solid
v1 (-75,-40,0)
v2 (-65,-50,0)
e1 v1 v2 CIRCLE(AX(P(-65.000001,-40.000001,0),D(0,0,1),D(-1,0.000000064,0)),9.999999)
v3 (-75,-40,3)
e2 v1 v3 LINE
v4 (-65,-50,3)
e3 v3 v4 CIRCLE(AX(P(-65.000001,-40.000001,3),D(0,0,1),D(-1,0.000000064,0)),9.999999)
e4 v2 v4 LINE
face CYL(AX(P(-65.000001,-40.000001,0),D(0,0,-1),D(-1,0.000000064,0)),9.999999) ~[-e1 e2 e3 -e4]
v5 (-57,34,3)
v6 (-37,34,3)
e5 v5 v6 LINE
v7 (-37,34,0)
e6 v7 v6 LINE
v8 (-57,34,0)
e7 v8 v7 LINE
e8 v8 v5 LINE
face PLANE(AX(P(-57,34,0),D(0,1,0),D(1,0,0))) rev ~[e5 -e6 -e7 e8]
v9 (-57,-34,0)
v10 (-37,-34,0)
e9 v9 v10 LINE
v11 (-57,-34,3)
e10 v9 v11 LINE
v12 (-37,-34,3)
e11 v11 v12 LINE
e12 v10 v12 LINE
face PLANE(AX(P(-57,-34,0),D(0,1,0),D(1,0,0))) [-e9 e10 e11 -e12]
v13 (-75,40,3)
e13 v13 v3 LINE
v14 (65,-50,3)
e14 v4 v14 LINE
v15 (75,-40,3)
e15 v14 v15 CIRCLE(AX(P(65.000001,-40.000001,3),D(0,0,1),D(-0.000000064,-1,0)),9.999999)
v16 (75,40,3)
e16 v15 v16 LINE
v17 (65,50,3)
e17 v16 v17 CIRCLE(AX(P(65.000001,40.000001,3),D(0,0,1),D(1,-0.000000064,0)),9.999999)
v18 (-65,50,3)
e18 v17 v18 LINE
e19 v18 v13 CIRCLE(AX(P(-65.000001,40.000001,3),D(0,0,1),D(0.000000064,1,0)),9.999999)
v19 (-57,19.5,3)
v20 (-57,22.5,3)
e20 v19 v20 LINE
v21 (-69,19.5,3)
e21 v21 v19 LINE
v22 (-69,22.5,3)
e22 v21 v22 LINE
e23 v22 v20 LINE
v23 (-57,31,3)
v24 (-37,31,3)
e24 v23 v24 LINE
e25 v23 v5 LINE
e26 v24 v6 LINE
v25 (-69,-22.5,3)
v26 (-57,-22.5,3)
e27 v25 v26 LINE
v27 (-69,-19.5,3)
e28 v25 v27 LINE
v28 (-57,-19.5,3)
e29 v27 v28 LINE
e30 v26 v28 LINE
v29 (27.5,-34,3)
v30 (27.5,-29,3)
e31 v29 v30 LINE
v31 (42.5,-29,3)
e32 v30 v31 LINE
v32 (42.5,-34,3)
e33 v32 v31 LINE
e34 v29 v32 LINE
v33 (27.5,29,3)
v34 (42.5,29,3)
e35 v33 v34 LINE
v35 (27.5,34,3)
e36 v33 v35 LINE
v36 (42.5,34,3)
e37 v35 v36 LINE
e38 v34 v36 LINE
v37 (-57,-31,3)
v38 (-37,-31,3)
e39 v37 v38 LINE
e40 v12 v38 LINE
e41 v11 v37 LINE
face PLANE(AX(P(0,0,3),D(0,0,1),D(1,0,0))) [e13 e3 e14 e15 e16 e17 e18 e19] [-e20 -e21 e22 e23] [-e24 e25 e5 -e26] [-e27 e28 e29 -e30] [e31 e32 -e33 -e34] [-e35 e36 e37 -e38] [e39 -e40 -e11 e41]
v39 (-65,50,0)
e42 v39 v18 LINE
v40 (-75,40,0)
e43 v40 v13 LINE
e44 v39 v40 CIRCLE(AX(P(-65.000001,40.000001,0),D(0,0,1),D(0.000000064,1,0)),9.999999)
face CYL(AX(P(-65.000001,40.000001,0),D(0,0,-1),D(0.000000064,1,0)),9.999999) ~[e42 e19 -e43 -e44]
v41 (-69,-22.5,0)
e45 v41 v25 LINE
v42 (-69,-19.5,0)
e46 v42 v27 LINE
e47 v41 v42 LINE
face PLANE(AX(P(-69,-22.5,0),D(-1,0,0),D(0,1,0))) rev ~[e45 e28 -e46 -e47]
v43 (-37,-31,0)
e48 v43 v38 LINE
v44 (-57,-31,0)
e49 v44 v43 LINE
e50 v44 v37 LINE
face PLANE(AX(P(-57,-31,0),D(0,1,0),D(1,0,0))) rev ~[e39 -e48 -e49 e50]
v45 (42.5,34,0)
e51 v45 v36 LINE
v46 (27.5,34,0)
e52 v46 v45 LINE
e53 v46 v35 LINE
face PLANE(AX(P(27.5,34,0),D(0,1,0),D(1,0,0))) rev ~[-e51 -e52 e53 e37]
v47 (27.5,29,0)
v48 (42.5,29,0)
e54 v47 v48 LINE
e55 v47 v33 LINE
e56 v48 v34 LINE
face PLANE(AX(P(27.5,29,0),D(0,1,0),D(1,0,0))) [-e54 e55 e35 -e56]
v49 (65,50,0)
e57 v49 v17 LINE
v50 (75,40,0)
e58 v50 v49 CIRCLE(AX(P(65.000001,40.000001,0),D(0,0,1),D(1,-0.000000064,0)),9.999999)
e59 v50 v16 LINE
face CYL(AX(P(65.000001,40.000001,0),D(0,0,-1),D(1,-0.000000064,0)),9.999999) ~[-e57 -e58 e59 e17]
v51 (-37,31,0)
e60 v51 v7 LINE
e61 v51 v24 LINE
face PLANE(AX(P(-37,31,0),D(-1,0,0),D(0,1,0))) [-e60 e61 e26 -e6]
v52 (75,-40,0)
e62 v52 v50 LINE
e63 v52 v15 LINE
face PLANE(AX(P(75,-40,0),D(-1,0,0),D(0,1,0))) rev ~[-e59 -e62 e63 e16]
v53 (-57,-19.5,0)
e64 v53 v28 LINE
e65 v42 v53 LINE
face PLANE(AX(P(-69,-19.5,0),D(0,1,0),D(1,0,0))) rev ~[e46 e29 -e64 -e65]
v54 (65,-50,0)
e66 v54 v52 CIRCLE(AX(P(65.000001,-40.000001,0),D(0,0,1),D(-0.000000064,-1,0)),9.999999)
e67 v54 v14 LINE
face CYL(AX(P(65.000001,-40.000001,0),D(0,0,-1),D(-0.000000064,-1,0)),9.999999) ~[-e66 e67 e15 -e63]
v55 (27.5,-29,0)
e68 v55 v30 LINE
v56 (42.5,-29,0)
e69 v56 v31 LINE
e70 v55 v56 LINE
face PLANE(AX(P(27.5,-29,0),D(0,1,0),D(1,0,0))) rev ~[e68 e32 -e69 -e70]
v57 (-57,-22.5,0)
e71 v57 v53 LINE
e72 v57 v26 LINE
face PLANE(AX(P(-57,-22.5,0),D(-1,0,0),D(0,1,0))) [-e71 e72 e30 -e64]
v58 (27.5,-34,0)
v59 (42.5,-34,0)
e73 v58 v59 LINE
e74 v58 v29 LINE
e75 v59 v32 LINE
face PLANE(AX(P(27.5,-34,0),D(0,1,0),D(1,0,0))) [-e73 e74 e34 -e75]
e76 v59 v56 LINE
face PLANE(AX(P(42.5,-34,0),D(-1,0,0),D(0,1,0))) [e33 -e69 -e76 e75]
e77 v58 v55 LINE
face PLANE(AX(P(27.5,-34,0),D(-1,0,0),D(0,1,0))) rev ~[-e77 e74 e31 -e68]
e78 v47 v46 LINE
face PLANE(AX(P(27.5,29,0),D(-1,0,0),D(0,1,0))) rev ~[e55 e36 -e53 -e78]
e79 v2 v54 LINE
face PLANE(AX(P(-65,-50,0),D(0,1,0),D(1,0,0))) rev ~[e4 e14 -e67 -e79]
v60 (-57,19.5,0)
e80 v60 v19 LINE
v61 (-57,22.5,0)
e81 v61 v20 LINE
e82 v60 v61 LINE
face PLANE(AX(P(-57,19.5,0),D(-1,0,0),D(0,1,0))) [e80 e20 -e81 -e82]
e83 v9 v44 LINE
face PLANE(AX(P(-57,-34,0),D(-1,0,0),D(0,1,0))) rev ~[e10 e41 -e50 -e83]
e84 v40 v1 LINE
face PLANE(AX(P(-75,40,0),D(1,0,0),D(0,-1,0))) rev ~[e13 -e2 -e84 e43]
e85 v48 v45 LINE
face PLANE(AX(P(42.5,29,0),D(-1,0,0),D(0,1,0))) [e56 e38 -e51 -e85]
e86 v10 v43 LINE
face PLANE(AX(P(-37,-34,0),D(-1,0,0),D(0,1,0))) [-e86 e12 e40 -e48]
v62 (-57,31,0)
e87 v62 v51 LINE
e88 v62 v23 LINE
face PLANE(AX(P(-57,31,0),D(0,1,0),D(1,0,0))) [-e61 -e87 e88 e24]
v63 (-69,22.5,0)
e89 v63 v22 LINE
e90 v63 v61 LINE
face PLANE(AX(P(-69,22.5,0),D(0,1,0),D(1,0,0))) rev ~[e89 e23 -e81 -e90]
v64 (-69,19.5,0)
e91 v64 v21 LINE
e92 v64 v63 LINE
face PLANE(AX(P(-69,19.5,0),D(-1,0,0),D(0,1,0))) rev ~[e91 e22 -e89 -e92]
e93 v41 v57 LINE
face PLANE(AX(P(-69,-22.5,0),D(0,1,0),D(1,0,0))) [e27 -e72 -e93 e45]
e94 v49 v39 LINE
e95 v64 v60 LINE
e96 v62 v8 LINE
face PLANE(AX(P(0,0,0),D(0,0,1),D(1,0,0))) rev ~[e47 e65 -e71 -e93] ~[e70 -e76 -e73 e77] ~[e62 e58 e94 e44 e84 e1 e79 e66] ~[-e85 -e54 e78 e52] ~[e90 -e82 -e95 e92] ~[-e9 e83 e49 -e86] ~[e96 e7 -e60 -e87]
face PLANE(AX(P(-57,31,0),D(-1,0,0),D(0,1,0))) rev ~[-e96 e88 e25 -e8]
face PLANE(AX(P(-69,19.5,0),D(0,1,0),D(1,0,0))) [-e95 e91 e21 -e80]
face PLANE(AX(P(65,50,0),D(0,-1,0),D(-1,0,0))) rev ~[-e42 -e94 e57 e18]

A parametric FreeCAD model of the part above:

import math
import FreeCAD as App
import Part
import Sketcher
from FreeCAD import Vector
Q = App.Units.Quantity


def add_polygon(sketch, points):
    """Adds a closed chain of lines whose ends are joined by coincident constraints."""
    first, n = sketch.GeometryCount, len(points)
    for a, b in zip(points, points[1:] + points[:1]):
        sketch.addGeometry(Part.LineSegment(App.Vector(*a, 0), App.Vector(*b, 0)), False)
    for i in range(n):
        sketch.addConstraint(Sketcher.Constraint("Coincident", first + i, 2, first + (i + 1) % n, 1))

doc = App.newDocument("Part")
body = doc.addObject("PartDesign::Body", "Body")

# Sketch on XY plane
sketch1 = doc.addObject("Sketcher::SketchObject", "Sketch")
body.addObject(sketch1)
sketch1.AttachmentSupport = (doc.XY_Plane, [""])
sketch1.MapMode = "FlatFace"
sketch1.addGeometry(Part.LineSegment(Vector(65, 50, 0), Vector(-65, 50, 0)), False)  # 0
sketch1.addGeometry(Part.ArcOfCircle(Part.Circle(Vector(-65, 40, 0), Vector(0, 0, 1), 10), math.radians(90), math.radians(180)), False)  # 1
sketch1.addGeometry(Part.LineSegment(Vector(-75, 40, 0), Vector(-75, -40, 0)), False)  # 2
sketch1.addGeometry(Part.ArcOfCircle(Part.Circle(Vector(-65, -40, 0), Vector(0, 0, 1), 10), math.radians(180), math.radians(270)), False)  # 3
sketch1.addGeometry(Part.LineSegment(Vector(-65, -50, 0), Vector(65, -50, 0)), False)  # 4
sketch1.addGeometry(Part.ArcOfCircle(Part.Circle(Vector(65, -40, 0), Vector(0, 0, 1), 10), math.radians(-90), math.radians(0)), False)  # 5
sketch1.addGeometry(Part.LineSegment(Vector(75, -40, 0), Vector(75, 40, 0)), False)  # 6
sketch1.addGeometry(Part.ArcOfCircle(Part.Circle(Vector(65, 40, 0), Vector(0, 0, 1), 10), math.radians(0), math.radians(90)), False)  # 7
add_polygon(sketch1, [(-37, -34), (-57, -34), (-57, -31), (-37, -31)])  # lines 8-11
add_polygon(sketch1, [(-57, -22.5), (-69, -22.5), (-69, -19.5), (-57, -19.5)])  # lines 12-15
add_polygon(sketch1, [(42.5, -34), (27.5, -34), (27.5, -29), (42.5, -29)])  # lines 16-19
add_polygon(sketch1, [(-57, 19.5), (-69, 19.5), (-69, 22.5), (-57, 22.5)])  # lines 20-23
add_polygon(sketch1, [(-37, 31), (-57, 31), (-57, 34), (-37, 34)])  # lines 24-27
add_polygon(sketch1, [(42.5, 29), (27.5, 29), (27.5, 34), (42.5, 34)])  # lines 28-31
sketch1.addConstraint([
    Sketcher.Constraint("Tangent", 0, 2, 1, 1),
    Sketcher.Constraint("Tangent", 1, 2, 2, 1),
    Sketcher.Constraint("Tangent", 2, 2, 3, 1),
    Sketcher.Constraint("Tangent", 3, 2, 4, 1),
    Sketcher.Constraint("Tangent", 4, 2, 5, 1),
    Sketcher.Constraint("Tangent", 5, 2, 6, 1),
    Sketcher.Constraint("Tangent", 6, 2, 7, 1),
    Sketcher.Constraint("Tangent", 7, 2, 0, 1),
    Sketcher.Constraint("Horizontal", 0),
    Sketcher.Constraint("Vertical", 2),
    Sketcher.Constraint("Horizontal", 4),
    Sketcher.Constraint("Vertical", 6),
    Sketcher.Constraint("Horizontal", 8),
    Sketcher.Constraint("Vertical", 9),
    Sketcher.Constraint("Horizontal", 10),
    Sketcher.Constraint("Vertical", 11),
    Sketcher.Constraint("Horizontal", 12),
    Sketcher.Constraint("Vertical", 13),
    Sketcher.Constraint("Horizontal", 14),
    Sketcher.Constraint("Vertical", 15),
    Sketcher.Constraint("Horizontal", 16),
    Sketcher.Constraint("Vertical", 17),
    Sketcher.Constraint("Horizontal", 18),
    Sketcher.Constraint("Vertical", 19),
    Sketcher.Constraint("Horizontal", 20),
    Sketcher.Constraint("Vertical", 21),
    Sketcher.Constraint("Horizontal", 22),
    Sketcher.Constraint("Vertical", 23),
    Sketcher.Constraint("Horizontal", 24),
    Sketcher.Constraint("Vertical", 25),
    Sketcher.Constraint("Horizontal", 26),
    Sketcher.Constraint("Vertical", 27),
    Sketcher.Constraint("Horizontal", 28),
    Sketcher.Constraint("Vertical", 29),
    Sketcher.Constraint("Horizontal", 30),
    Sketcher.Constraint("Vertical", 31),
    Sketcher.Constraint("Equal", 1, 3),
    Sketcher.Constraint("Equal", 3, 5),
    Sketcher.Constraint("Equal", 5, 7),
    Sketcher.Constraint("Symmetric", 1, 3, 5, 3, -1, 1),
    Sketcher.Constraint("Symmetric", 13, 2, 20, 2, -1),
    Sketcher.Constraint("Symmetric", 15, 2, 22, 2, -1),
    Sketcher.Constraint("Symmetric", 9, 2, 24, 2, -1),
    Sketcher.Constraint("Symmetric", 11, 2, 26, 2, -1),
    Sketcher.Constraint("Symmetric", 17, 2, 28, 2, -1),
    Sketcher.Constraint("Symmetric", 19, 2, 30, 2, -1),
    Sketcher.Constraint("Horizontal", 11, 2, 16, 2),
    Sketcher.Constraint("Vertical", 9, 2, 14, 2),
    Sketcher.Constraint("Equal", 11, 13),
    Sketcher.Constraint("Radius", 1, Q("9.999999 mm")),
    Sketcher.Constraint("DistanceX", 0, 2, 0, 1, Q("130 mm")),
    Sketcher.Constraint("DistanceX", 8, 2, 8, 1, Q("20 mm")),
    Sketcher.Constraint("DistanceX", 12, 2, 12, 1, Q("12 mm")),
    Sketcher.Constraint("DistanceX", 16, 2, 16, 1, Q("15 mm")),
    Sketcher.Constraint("DistanceY", 2, 2, 2, 1, Q("80 mm")),
    Sketcher.Constraint("DistanceY", 9, 1, 9, 2, Q("3 mm")),
    Sketcher.Constraint("DistanceY", 17, 1, 17, 2, Q("5 mm")),
    Sketcher.Constraint("DistanceX", 8, 2, -1, 1, Q("57 mm")),
    Sketcher.Constraint("DistanceY", 8, 2, -1, 1, Q("34 mm")),
    Sketcher.Constraint("DistanceY", 13, 2, 20, 2, Q("39 mm")),
    Sketcher.Constraint("DistanceX", -1, 1, 16, 2, Q("27.5 mm")),
])
pad1 = doc.addObject("PartDesign::Pad", "Pad")
body.addObject(pad1)
pad1.Profile = sketch1
pad1.Length = 3

doc.recompute()
